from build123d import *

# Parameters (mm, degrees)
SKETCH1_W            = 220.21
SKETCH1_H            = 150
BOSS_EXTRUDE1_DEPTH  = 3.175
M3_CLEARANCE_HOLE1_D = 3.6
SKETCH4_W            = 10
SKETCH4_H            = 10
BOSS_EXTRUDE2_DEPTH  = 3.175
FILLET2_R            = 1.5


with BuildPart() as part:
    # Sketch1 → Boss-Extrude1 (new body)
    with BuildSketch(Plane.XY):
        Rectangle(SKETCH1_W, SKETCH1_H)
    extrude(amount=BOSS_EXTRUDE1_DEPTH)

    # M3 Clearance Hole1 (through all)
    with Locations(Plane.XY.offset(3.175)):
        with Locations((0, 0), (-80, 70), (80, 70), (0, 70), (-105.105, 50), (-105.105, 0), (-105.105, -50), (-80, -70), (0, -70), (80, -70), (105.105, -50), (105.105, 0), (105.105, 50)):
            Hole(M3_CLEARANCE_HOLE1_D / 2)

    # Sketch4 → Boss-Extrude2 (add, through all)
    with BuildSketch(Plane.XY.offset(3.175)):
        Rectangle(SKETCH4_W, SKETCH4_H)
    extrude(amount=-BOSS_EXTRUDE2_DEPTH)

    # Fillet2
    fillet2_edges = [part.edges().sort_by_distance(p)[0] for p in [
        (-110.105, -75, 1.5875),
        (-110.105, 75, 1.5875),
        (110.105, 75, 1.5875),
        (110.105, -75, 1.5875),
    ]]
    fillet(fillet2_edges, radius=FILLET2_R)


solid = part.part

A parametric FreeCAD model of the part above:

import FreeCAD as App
import Part
import Sketcher

V = App.Vector
Q = App.Units.Quantity


def edges_at(feature, points):
    """Names of the edges that pass closest to the given points."""
    edges = feature.Shape.Edges
    near = lambda p: min(range(len(edges)), key=lambda i: edges[i].distToShape(Part.Vertex(*p))[0])
    return sorted({f"Edge{near(p) + 1}" for p in points})

doc = App.newDocument("Part")
params = doc.addObject("Spreadsheet::Sheet", "Params")
for row, (alias, value) in enumerate([
    ("sketch1_height", "150 mm"),
    ("sketch1_width", "220.21 mm"),
    ("pad1_length", "3.175 mm"),
    ("sketch2_diameter", "3.6 mm"),
    ("hole_diameter", "3.6 mm"),
    ("sketch3_width", "10 mm"),
    ("pad2_length", "3.175 mm"),
    ("fillet_radius", "1.5 mm"),
], start=1):
    params.set(f"A{row}", alias)
    params.set(f"B{row}", "=" + value)
    params.setAlias(f"B{row}", alias)

body = doc.addObject("PartDesign::Body", "Body")

sketch1 = body.newObject("Sketcher::SketchObject", "Sketch")
sketch1.AttachmentSupport = (doc.getObject("XY_Plane"), [""])
sketch1.MapMode = "FlatFace"
sketch1.addGeometry([
    Part.LineSegment(V(-110, 75, 0), V(-110, -75, 0)),
    Part.LineSegment(V(-110, -75, 0), V(110, -75, 0)),
    Part.LineSegment(V(110, -75, 0), V(110, 75, 0)),
    Part.LineSegment(V(110, 75, 0), V(-110, 75, 0)),
], False)
sketch1.addConstraint([
    Sketcher.Constraint("Coincident", 0, 2, 1, 1),
    Sketcher.Constraint("Coincident", 1, 2, 2, 1),
    Sketcher.Constraint("Coincident", 2, 2, 3, 1),
    Sketcher.Constraint("Coincident", 3, 2, 0, 1),
    Sketcher.Constraint("Vertical", 0),
    Sketcher.Constraint("Horizontal", 1),
    Sketcher.Constraint("Vertical", 2),
    Sketcher.Constraint("Horizontal", 3),
    Sketcher.Constraint("Symmetric", 0, 2, 2, 2, -1, 1),
    Sketcher.Constraint("DistanceY", 0, 2, 0, 1, Q("150 mm")),
    Sketcher.Constraint("DistanceX", 1, 1, 1, 2, Q("220.21 mm")),
])
sketch1.setExpression("Constraints[9]", "Params.sketch1_height")
sketch1.setExpression("Constraints[10]", "Params.sketch1_width")
pad1 = body.newObject("PartDesign::Pad", "Pad")
pad1.Profile = sketch1
pad1.setExpression("Length", "Params.pad1_length")

sketch2 = body.newObject("Sketcher::SketchObject", "Sketch001")
sketch2.AttachmentSupport = (doc.getObject("XY_Plane"), [""])
sketch2.MapMode = "FlatFace"
sketch2.AttachmentOffset = App.Placement(V(0, 0, 3.175), App.Rotation())
sketch2.addGeometry([
    Part.Circle(V(0, 0, 0), V(0, 0, 1), 1.8),
    Part.Circle(V(-80, 70, 0), V(0, 0, 1), 1.8),
    Part.Circle(V(80, 70, 0), V(0, 0, 1), 1.8),
    Part.Circle(V(0, 70, 0), V(0, 0, 1), 1.8),
    Part.Circle(V(-105.1, 50, 0), V(0, 0, 1), 1.8),
    Part.Circle(V(-105.1, 0, 0), V(0, 0, 1), 1.8),
    Part.Circle(V(-105.1, -50, 0), V(0, 0, 1), 1.8),
    Part.Circle(V(-80, -70, 0), V(0, 0, 1), 1.8),
    Part.Circle(V(0, -70, 0), V(0, 0, 1), 1.8),
    Part.Circle(V(80, -70, 0), V(0, 0, 1), 1.8),
    Part.Circle(V(105.1, -50, 0), V(0, 0, 1), 1.8),
    Part.Circle(V(105.1, 0, 0), V(0, 0, 1), 1.8),
    Part.Circle(V(105.1, 50, 0), V(0, 0, 1), 1.8),
], False)
sketch2.addConstraint([
    Sketcher.Constraint("Coincident", 0, 3, -1, 1),
    Sketcher.Constraint("Equal", 0, 1),
    Sketcher.Constraint("Equal", 1, 2),
    Sketcher.Constraint("Equal", 2, 3),
    Sketcher.Constraint("Equal", 3, 4),
    Sketcher.Constraint("Equal", 4, 5),
    Sketcher.Constraint("Equal", 5, 6),
    Sketcher.Constraint("Equal", 6, 7),
    Sketcher.Constraint("Equal", 7, 8),
    Sketcher.Constraint("Equal", 8, 9),
    Sketcher.Constraint("Equal", 9, 10),
    Sketcher.Constraint("Equal", 10, 11),
    Sketcher.Constraint("Equal", 11, 12),
    Sketcher.Constraint("Symmetric", 2, 3, 7, 3, -1, 1),
    Sketcher.Constraint("Symmetric", 3, 3, 8, 3, -1, 1),
    Sketcher.Constraint("Symmetric", 1, 3, 9, 3, -1, 1),
    Sketcher.Constraint("Symmetric", 4, 3, 10, 3, -1, 1),
    Sketcher.Constraint("Symmetric", 5, 3, 11, 3, -1, 1),
    Sketcher.Constraint("Symmetric", 6, 3, 12, 3, -1, 1),
    Sketcher.Constraint("Symmetric", 1, 3, 2, 3, -2),
    Sketcher.Constraint("Symmetric", 6, 3, 10, 3, -2),
    Sketcher.Constraint("PointOnObject", 3, 3, -2),
    Sketcher.Constraint("PointOnObject", 5, 3, -1),
    Sketcher.Constraint("Horizontal", 2, 3, 3, 3),
    Sketcher.Constraint("Vertical", 4, 3, 5, 3),
    Sketcher.Constraint("Diameter", 0, Q("3.6 mm")),
    Sketcher.Constraint("DistanceX", 1, 3, -1, 1, Q("80 mm")),
    Sketcher.Constraint("DistanceY", -1, 1, 1, 3, Q("70 mm")),
    Sketcher.Constraint("DistanceY", -1, 1, 4, 3, Q("50 mm")),
    Sketcher.Constraint("DistanceX", 4, 3, -1, 1, Q("105.105 mm")),
])
sketch2.setExpression("Constraints[25]", "Params.sketch2_diameter")
doc.recompute()
hole = body.newObject("PartDesign::Hole", "Hole")
hole.Profile = sketch2
hole.ThreadType = "None"
hole.setExpression("Diameter", "Params.hole_diameter")
hole.DepthType = "ThroughAll"

sketch3 = body.newObject("Sketcher::SketchObject", "Sketch002")
sketch3.AttachmentSupport = (doc.getObject("XY_Plane"), [""])
sketch3.MapMode = "FlatFace"
sketch3.AttachmentOffset = App.Placement(V(0, 0, 3.175), App.Rotation())
sketch3.addGeometry([
    Part.LineSegment(V(-5, 5, 0), V(-5, -5, 0)),
    Part.LineSegment(V(-5, -5, 0), V(5, -5, 0)),
    Part.LineSegment(V(5, -5, 0), V(5, 5, 0)),
    Part.LineSegment(V(5, 5, 0), V(-5, 5, 0)),
], False)
sketch3.addConstraint([
    Sketcher.Constraint("Coincident", 0, 2, 1, 1),
    Sketcher.Constraint("Coincident", 1, 2, 2, 1),
    Sketcher.Constraint("Coincident", 2, 2, 3, 1),
    Sketcher.Constraint("Coincident", 3, 2, 0, 1),
    Sketcher.Constraint("Vertical", 0),
    Sketcher.Constraint("Horizontal", 1),
    Sketcher.Constraint("Vertical", 2),
    Sketcher.Constraint("Horizontal", 3),
    Sketcher.Constraint("Symmetric", 0, 2, 2, 2, -1, 1),
    Sketcher.Constraint("Equal", 3, 0),
    Sketcher.Constraint("DistanceX", 1, 1, 1, 2, Q("10 mm")),
])
sketch3.setExpression("Constraints[10]", "Params.sketch3_width")
pad2 = body.newObject("PartDesign::Pad", "Pad001")
pad2.Profile = sketch3
pad2.setExpression("Length", "Params.pad2_length")
pad2.Reversed = True
doc.recompute()

fillet = body.newObject("PartDesign::Fillet", "Fillet")
fillet.Base = (pad2, edges_at(pad2, [
    (-110.105, -75, 1.587),
    (-110.105, 75, 1.587),
    (110.105, 75, 1.587),
    (110.105, -75, 1.587),
]))
fillet.setExpression("Radius", "Params.fillet_radius")

doc.recompute()
